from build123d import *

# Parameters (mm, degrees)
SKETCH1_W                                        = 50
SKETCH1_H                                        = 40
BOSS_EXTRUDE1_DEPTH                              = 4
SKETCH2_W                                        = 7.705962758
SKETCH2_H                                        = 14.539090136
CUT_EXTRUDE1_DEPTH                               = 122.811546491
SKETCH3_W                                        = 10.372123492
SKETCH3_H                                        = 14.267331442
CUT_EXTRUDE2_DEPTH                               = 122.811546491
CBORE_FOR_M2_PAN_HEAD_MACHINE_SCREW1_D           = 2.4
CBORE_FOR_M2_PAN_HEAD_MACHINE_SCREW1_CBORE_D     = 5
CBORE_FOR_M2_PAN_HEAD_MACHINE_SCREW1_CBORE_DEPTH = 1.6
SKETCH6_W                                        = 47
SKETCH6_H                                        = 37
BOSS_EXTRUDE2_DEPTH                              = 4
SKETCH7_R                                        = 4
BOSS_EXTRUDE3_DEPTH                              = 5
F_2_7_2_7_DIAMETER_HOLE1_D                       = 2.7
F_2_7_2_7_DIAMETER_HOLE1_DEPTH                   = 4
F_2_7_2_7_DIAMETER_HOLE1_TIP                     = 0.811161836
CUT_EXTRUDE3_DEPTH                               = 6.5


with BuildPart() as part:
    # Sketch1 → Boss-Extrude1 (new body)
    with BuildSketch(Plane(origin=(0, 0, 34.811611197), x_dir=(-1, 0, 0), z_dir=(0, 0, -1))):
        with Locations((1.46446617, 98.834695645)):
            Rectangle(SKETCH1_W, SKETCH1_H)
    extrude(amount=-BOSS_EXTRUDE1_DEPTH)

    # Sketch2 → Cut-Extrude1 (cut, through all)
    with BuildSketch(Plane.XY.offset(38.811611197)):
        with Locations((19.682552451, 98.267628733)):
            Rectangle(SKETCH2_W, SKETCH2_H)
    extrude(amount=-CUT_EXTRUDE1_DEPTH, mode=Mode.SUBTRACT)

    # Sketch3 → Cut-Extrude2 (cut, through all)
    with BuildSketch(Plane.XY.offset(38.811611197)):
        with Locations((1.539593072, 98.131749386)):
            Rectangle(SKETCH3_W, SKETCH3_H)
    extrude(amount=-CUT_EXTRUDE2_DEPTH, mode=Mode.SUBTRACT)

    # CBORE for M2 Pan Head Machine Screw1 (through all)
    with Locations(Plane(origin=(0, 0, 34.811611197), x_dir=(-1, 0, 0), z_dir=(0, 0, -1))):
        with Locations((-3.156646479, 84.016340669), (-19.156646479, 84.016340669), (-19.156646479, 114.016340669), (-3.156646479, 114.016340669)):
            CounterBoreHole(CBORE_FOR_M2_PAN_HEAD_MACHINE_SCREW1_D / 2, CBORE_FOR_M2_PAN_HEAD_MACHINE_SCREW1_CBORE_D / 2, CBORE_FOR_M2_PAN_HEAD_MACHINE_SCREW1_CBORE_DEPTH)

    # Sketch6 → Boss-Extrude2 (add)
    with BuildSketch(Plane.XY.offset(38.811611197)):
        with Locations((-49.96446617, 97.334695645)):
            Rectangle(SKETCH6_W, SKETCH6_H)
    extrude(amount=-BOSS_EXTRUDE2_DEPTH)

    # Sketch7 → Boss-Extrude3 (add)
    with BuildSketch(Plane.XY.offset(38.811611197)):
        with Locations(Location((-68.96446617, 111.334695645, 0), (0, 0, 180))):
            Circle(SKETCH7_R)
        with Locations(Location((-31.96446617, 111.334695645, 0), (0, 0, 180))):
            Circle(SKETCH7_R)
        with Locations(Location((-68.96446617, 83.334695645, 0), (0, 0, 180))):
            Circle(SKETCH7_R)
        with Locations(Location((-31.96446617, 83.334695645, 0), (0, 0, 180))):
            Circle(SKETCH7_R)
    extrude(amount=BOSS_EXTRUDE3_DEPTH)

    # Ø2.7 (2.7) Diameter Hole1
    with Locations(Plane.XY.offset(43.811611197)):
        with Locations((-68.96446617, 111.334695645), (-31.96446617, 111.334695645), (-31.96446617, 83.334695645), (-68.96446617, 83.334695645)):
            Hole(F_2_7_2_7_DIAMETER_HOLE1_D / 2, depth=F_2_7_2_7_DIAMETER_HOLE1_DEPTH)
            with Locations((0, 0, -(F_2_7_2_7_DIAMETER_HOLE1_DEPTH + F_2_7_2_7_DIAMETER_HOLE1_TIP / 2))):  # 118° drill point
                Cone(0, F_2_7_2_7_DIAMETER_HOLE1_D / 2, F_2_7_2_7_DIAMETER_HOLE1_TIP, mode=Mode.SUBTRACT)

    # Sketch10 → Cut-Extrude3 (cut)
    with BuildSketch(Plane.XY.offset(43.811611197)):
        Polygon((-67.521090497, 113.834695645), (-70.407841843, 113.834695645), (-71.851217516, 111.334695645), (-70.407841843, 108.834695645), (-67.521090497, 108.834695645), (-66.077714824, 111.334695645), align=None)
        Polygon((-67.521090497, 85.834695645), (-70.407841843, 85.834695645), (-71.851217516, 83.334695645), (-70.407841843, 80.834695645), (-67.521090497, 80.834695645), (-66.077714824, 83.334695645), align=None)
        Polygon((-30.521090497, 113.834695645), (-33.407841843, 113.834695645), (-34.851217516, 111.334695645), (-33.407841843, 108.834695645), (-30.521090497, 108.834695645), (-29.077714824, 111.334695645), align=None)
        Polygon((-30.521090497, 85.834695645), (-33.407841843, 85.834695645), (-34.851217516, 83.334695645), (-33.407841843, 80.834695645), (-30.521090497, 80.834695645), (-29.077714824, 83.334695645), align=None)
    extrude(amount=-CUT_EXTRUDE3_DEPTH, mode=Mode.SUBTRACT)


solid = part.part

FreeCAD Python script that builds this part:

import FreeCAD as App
import Part
import Sketcher

V = App.Vector
Q = App.Units.Quantity

doc = App.newDocument("Part")
body = doc.addObject("PartDesign::Body", "Body")

# Sketch on XY plane
sketch1 = doc.addObject("Sketcher::SketchObject", "Sketch")
body.addObject(sketch1)
sketch1.AttachmentSupport = (doc.XY_Plane, [""])
sketch1.MapMode = "FlatFace"
sketch1.AttachmentOffset = App.Placement(V(0, 0, 34.811611), App.Rotation())
sketch1.addGeometry(Part.LineSegment(V(24, 119, 0), V(24, 79, 0)), False)
sketch1.addGeometry(Part.LineSegment(V(24, 79, 0), V(-26, 79, 0)), False)
sketch1.addGeometry(Part.LineSegment(V(-26, 79, 0), V(-26, 119, 0)), False)
sketch1.addGeometry(Part.LineSegment(V(-26, 119, 0), V(24, 119, 0)), False)
sketch1.addConstraint(Sketcher.Constraint("Coincident", 0, 2, 1, 1))
sketch1.addConstraint(Sketcher.Constraint("Coincident", 1, 2, 2, 1))
sketch1.addConstraint(Sketcher.Constraint("Coincident", 2, 2, 3, 1))
sketch1.addConstraint(Sketcher.Constraint("Coincident", 3, 2, 0, 1))
sketch1.addConstraint(Sketcher.Constraint("Vertical", 0))
sketch1.addConstraint(Sketcher.Constraint("Horizontal", 1))
sketch1.addConstraint(Sketcher.Constraint("Vertical", 2))
sketch1.addConstraint(Sketcher.Constraint("Horizontal", 3))
sketch1.addConstraint(Sketcher.Constraint("DistanceX", 1, 2, 1, 1, Q("50 mm")))
sketch1.addConstraint(Sketcher.Constraint("DistanceY", 0, 2, 0, 1, Q("40 mm")))
sketch1.addConstraint(Sketcher.Constraint("DistanceX", -1, 1, 0, 2, Q("23.535534 mm")))
sketch1.addConstraint(Sketcher.Constraint("DistanceY", -1, 1, 0, 2, Q("78.834696 mm")))
pad1 = doc.addObject("PartDesign::Pad", "Pad")
body.addObject(pad1)
pad1.Profile = sketch1
pad1.Length = 4

# Sketch on XY plane
sketch2 = doc.addObject("Sketcher::SketchObject", "Sketch001")
body.addObject(sketch2)
sketch2.AttachmentSupport = (doc.XY_Plane, [""])
sketch2.MapMode = "FlatFace"
sketch2.AttachmentOffset = App.Placement(V(0, 0, 38.811611), App.Rotation())
sketch2.addGeometry(Part.LineSegment(V(16, 106, 0), V(16, 91, 0)), False)
sketch2.addGeometry(Part.LineSegment(V(16, 91, 0), V(24, 91, 0)), False)
sketch2.addGeometry(Part.LineSegment(V(24, 91, 0), V(24, 106, 0)), False)
sketch2.addGeometry(Part.LineSegment(V(24, 106, 0), V(16, 106, 0)), False)
sketch2.addConstraint(Sketcher.Constraint("Coincident", 0, 2, 1, 1))
sketch2.addConstraint(Sketcher.Constraint("Coincident", 1, 2, 2, 1))
sketch2.addConstraint(Sketcher.Constraint("Coincident", 2, 2, 3, 1))
sketch2.addConstraint(Sketcher.Constraint("Coincident", 3, 2, 0, 1))
sketch2.addConstraint(Sketcher.Constraint("Vertical", 0))
sketch2.addConstraint(Sketcher.Constraint("Horizontal", 1))
sketch2.addConstraint(Sketcher.Constraint("Vertical", 2))
sketch2.addConstraint(Sketcher.Constraint("Horizontal", 3))
sketch2.addConstraint(Sketcher.Constraint("DistanceY", 0, 2, 0, 1, Q("14.53909 mm")))
sketch2.addConstraint(Sketcher.Constraint("DistanceX", 1, 1, 1, 2, Q("7.705963 mm")))
sketch2.addConstraint(Sketcher.Constraint("DistanceX", -1, 1, 0, 2, Q("15.829571 mm")))
sketch2.addConstraint(Sketcher.Constraint("DistanceY", -1, 1, 0, 2, Q("90.998084 mm")))
pocket1 = doc.addObject("PartDesign::Pocket", "Pocket")
body.addObject(pocket1)
pocket1.Profile = sketch2
pocket1.Type = "ThroughAll"

# Sketch on XY plane
sketch3 = doc.addObject("Sketcher::SketchObject", "Sketch002")
body.addObject(sketch3)
sketch3.AttachmentSupport = (doc.XY_Plane, [""])
sketch3.MapMode = "FlatFace"
sketch3.AttachmentOffset = App.Placement(V(0, 0, 38.811611), App.Rotation())
sketch3.addGeometry(Part.LineSegment(V(-4, 105, 0), V(-4, 91, 0)), False)
sketch3.addGeometry(Part.LineSegment(V(-4, 91, 0), V(7, 91, 0)), False)
sketch3.addGeometry(Part.LineSegment(V(7, 91, 0), V(7, 105, 0)), False)
sketch3.addGeometry(Part.LineSegment(V(7, 105, 0), V(-4, 105, 0)), False)
sketch3.addConstraint(Sketcher.Constraint("Coincident", 0, 2, 1, 1))
sketch3.addConstraint(Sketcher.Constraint("Coincident", 1, 2, 2, 1))
sketch3.addConstraint(Sketcher.Constraint("Coincident", 2, 2, 3, 1))
sketch3.addConstraint(Sketcher.Constraint("Coincident", 3, 2, 0, 1))
sketch3.addConstraint(Sketcher.Constraint("Vertical", 0))
sketch3.addConstraint(Sketcher.Constraint("Horizontal", 1))
sketch3.addConstraint(Sketcher.Constraint("Vertical", 2))
sketch3.addConstraint(Sketcher.Constraint("Horizontal", 3))
sketch3.addConstraint(Sketcher.Constraint("DistanceY", 0, 2, 0, 1, Q("14.267331 mm")))
sketch3.addConstraint(Sketcher.Constraint("DistanceX", 1, 1, 1, 2, Q("10.372123 mm")))
sketch3.addConstraint(Sketcher.Constraint("DistanceX", 0, 2, -1, 1, Q("3.646469 mm")))
sketch3.addConstraint(Sketcher.Constraint("DistanceY", -1, 1, 0, 2, Q("90.998084 mm")))
pocket2 = doc.addObject("PartDesign::Pocket", "Pocket001")
body.addObject(pocket2)
pocket2.Profile = sketch3
pocket2.Type = "ThroughAll"

# Sketch on XY plane
sketch4 = doc.addObject("Sketcher::SketchObject", "Sketch003")
body.addObject(sketch4)
sketch4.AttachmentSupport = (doc.XY_Plane, [""])
sketch4.MapMode = "FlatFace"
sketch4.AttachmentOffset = App.Placement(V(0, 0, 34.811611), App.Rotation())
sketch4.addGeometry(Part.Circle(V(3.2, 84, 0), V(0, 0, 1), 1.2), False)
sketch4.addGeometry(Part.Circle(V(19.2, 84, 0), V(0, 0, 1), 1.2), False)
sketch4.addGeometry(Part.Circle(V(19.2, 114, 0), V(0, 0, 1), 1.2), False)
sketch4.addGeometry(Part.Circle(V(3.2, 114, 0), V(0, 0, 1), 1.2), False)
sketch4.addConstraint(Sketcher.Constraint("Equal", 0, 1))
sketch4.addConstraint(Sketcher.Constraint("Equal", 1, 2))
sketch4.addConstraint(Sketcher.Constraint("Equal", 2, 3))
sketch4.addConstraint(Sketcher.Constraint("Horizontal", 0, 3, 1, 3))
sketch4.addConstraint(Sketcher.Constraint("Horizontal", 2, 3, 3, 3))
sketch4.addConstraint(Sketcher.Constraint("Vertical", 1, 3, 2, 3))
sketch4.addConstraint(Sketcher.Constraint("Vertical", 0, 3, 3, 3))
sketch4.addConstraint(Sketcher.Constraint("Diameter", 0, Q("2.4 mm")))
sketch4.addConstraint(Sketcher.Constraint("DistanceX", 0, 3, 1, 3, Q("16 mm")))
sketch4.addConstraint(Sketcher.Constraint("DistanceY", 1, 3, 2, 3, Q("30 mm")))
sketch4.addConstraint(Sketcher.Constraint("DistanceY", -1, 1, 0, 3, Q("84.016341 mm")))
sketch4.addConstraint(Sketcher.Constraint("DistanceX", -1, 1, 0, 3, Q("3.156646 mm")))
doc.recompute()
hole = doc.addObject("PartDesign::Hole", "Hole")
body.addObject(hole)
hole.Profile = sketch4
hole.ThreadType = "None"
hole.Diameter = 2.4
hole.DepthType = "ThroughAll"
hole.HoleCutType = "Counterbore"
hole.HoleCutDiameter = 5
hole.HoleCutDepth = 1.6
hole.Reversed = True

# Sketch on XY plane
sketch5 = doc.addObject("Sketcher::SketchObject", "Sketch004")
body.addObject(sketch5)
sketch5.AttachmentSupport = (doc.XY_Plane, [""])
sketch5.MapMode = "FlatFace"
sketch5.AttachmentOffset = App.Placement(V(0, 0, 38.811611), App.Rotation())
sketch5.addGeometry(Part.LineSegment(V(-73, 116, 0), V(-73, 79, 0)), False)
sketch5.addGeometry(Part.LineSegment(V(-73, 79, 0), V(-26, 79, 0)), False)
sketch5.addGeometry(Part.LineSegment(V(-26, 79, 0), V(-26, 116, 0)), False)
sketch5.addGeometry(Part.LineSegment(V(-26, 116, 0), V(-73, 116, 0)), False)
sketch5.addConstraint(Sketcher.Constraint("Coincident", 0, 2, 1, 1))
sketch5.addConstraint(Sketcher.Constraint("Coincident", 1, 2, 2, 1))
sketch5.addConstraint(Sketcher.Constraint("Coincident", 2, 2, 3, 1))
sketch5.addConstraint(Sketcher.Constraint("Coincident", 3, 2, 0, 1))
sketch5.addConstraint(Sketcher.Constraint("Vertical", 0))
sketch5.addConstraint(Sketcher.Constraint("Horizontal", 1))
sketch5.addConstraint(Sketcher.Constraint("Vertical", 2))
sketch5.addConstraint(Sketcher.Constraint("Horizontal", 3))
sketch5.addConstraint(Sketcher.Constraint("DistanceX", 1, 1, 1, 2, Q("47 mm")))
sketch5.addConstraint(Sketcher.Constraint("DistanceY", 0, 2, 0, 1, Q("37 mm")))
sketch5.addConstraint(Sketcher.Constraint("DistanceX", 0, 2, -1, 1, Q("73.464466 mm")))
sketch5.addConstraint(Sketcher.Constraint("DistanceY", -1, 1, 0, 2, Q("78.834696 mm")))
pad2 = doc.addObject("PartDesign::Pad", "Pad001")
body.addObject(pad2)
pad2.Profile = sketch5
pad2.Length = 4
pad2.Reversed = True

# Sketch on XY plane
sketch6 = doc.addObject("Sketcher::SketchObject", "Sketch005")
body.addObject(sketch6)
sketch6.AttachmentSupport = (doc.XY_Plane, [""])
sketch6.MapMode = "FlatFace"
sketch6.AttachmentOffset = App.Placement(V(0, 0, 38.811611), App.Rotation())
sketch6.addGeometry(Part.Circle(V(-69, 111.3, 0), V(0, 0, 1), 4), False)
sketch6.addGeometry(Part.Circle(V(-32, 111.3, 0), V(0, 0, 1), 4), False)
sketch6.addGeometry(Part.Circle(V(-69, 83.3, 0), V(0, 0, 1), 4), False)
sketch6.addGeometry(Part.Circle(V(-32, 83.3, 0), V(0, 0, 1), 4), False)
sketch6.addConstraint(Sketcher.Constraint("Equal", 0, 1))
sketch6.addConstraint(Sketcher.Constraint("Equal", 1, 2))
sketch6.addConstraint(Sketcher.Constraint("Equal", 2, 3))
sketch6.addConstraint(Sketcher.Constraint("Horizontal", 0, 3, 1, 3))
sketch6.addConstraint(Sketcher.Constraint("Horizontal", 2, 3, 3, 3))
sketch6.addConstraint(Sketcher.Constraint("Vertical", 0, 3, 2, 3))
sketch6.addConstraint(Sketcher.Constraint("Vertical", 1, 3, 3, 3))
sketch6.addConstraint(Sketcher.Constraint("Diameter", 0, Q("8 mm")))
sketch6.addConstraint(Sketcher.Constraint("DistanceX", 0, 3, 1, 3, Q("37 mm")))
sketch6.addConstraint(Sketcher.Constraint("DistanceY", 2, 3, 0, 3, Q("28 mm")))
sketch6.addConstraint(Sketcher.Constraint("DistanceX", 0, 3, -1, 1, Q("68.964466 mm")))
sketch6.addConstraint(Sketcher.Constraint("DistanceY", -1, 1, 0, 3, Q("111.334696 mm")))
pad3 = doc.addObject("PartDesign::Pad", "Pad002")
body.addObject(pad3)
pad3.Profile = sketch6
pad3.Length = 5

# Sketch on XY plane
sketch7 = doc.addObject("Sketcher::SketchObject", "Sketch006")
body.addObject(sketch7)
sketch7.AttachmentSupport = (doc.XY_Plane, [""])
sketch7.MapMode = "FlatFace"
sketch7.AttachmentOffset = App.Placement(V(0, 0, 43.811611), App.Rotation())
sketch7.addGeometry(Part.Circle(V(-69, 111.3, 0), V(0, 0, 1), 1.4), False)
sketch7.addGeometry(Part.Circle(V(-32, 111.3, 0), V(0, 0, 1), 1.4), False)
sketch7.addGeometry(Part.Circle(V(-32, 83.3, 0), V(0, 0, 1), 1.4), False)
sketch7.addGeometry(Part.Circle(V(-69, 83.3, 0), V(0, 0, 1), 1.4), False)
sketch7.addConstraint(Sketcher.Constraint("Equal", 0, 1))
sketch7.addConstraint(Sketcher.Constraint("Equal", 1, 2))
sketch7.addConstraint(Sketcher.Constraint("Equal", 2, 3))
sketch7.addConstraint(Sketcher.Constraint("Horizontal", 0, 3, 1, 3))
sketch7.addConstraint(Sketcher.Constraint("Horizontal", 2, 3, 3, 3))
sketch7.addConstraint(Sketcher.Constraint("Vertical", 1, 3, 2, 3))
sketch7.addConstraint(Sketcher.Constraint("Vertical", 0, 3, 3, 3))
sketch7.addConstraint(Sketcher.Constraint("Diameter", 0, Q("2.7 mm")))
sketch7.addConstraint(Sketcher.Constraint("DistanceX", 0, 3, 1, 3, Q("37 mm")))
sketch7.addConstraint(Sketcher.Constraint("DistanceY", 2, 3, 1, 3, Q("28 mm")))
sketch7.addConstraint(Sketcher.Constraint("DistanceX", 0, 3, -1, 1, Q("68.964466 mm")))
sketch7.addConstraint(Sketcher.Constraint("DistanceY", -1, 1, 0, 3, Q("111.334696 mm")))
doc.recompute()
hole2 = doc.addObject("PartDesign::Hole", "Hole001")
body.addObject(hole2)
hole2.Profile = sketch7
hole2.ThreadType = "None"
hole2.Diameter = 2.7
hole2.DepthType = "Dimension"
hole2.Depth = 4
hole2.DrillPoint = "Angled"
hole2.DrillPointAngle = 118

# Sketch on XY plane
sketch8 = doc.addObject("Sketcher::SketchObject", "Sketch007")
body.addObject(sketch8)
sketch8.AttachmentSupport = (doc.XY_Plane, [""])
sketch8.MapMode = "FlatFace"
sketch8.AttachmentOffset = App.Placement(V(0, 0, 43.811611), App.Rotation())
sketch8.addGeometry(Part.LineSegment(V(-67.5, 113.8, 0), V(-70.4, 113.8, 0)), False)
sketch8.addGeometry(Part.LineSegment(V(-70.4, 113.8, 0), V(-71.9, 111.3, 0)), False)
sketch8.addGeometry(Part.LineSegment(V(-71.9, 111.3, 0), V(-70.4, 108.8, 0)), False)
sketch8.addGeometry(Part.LineSegment(V(-70.4, 108.8, 0), V(-67.5, 108.8, 0)), False)
sketch8.addGeometry(Part.LineSegment(V(-67.5, 108.8, 0), V(-66.1, 111.3, 0)), False)
sketch8.addGeometry(Part.LineSegment(V(-66.1, 111.3, 0), V(-67.5, 113.8, 0)), False)
sketch8.addGeometry(Part.LineSegment(V(-67.5, 85.8, 0), V(-70.4, 85.8, 0)), False)
sketch8.addGeometry(Part.LineSegment(V(-70.4, 85.8, 0), V(-71.9, 83.3, 0)), False)
sketch8.addGeometry(Part.LineSegment(V(-71.9, 83.3, 0), V(-70.4, 80.8, 0)), False)
sketch8.addGeometry(Part.LineSegment(V(-70.4, 80.8, 0), V(-67.5, 80.8, 0)), False)
sketch8.addGeometry(Part.LineSegment(V(-67.5, 80.8, 0), V(-66.1, 83.3, 0)), False)
sketch8.addGeometry(Part.LineSegment(V(-66.1, 83.3, 0), V(-67.5, 85.8, 0)), False)
sketch8.addGeometry(Part.LineSegment(V(-30.5, 113.8, 0), V(-33.4, 113.8, 0)), False)
sketch8.addGeometry(Part.LineSegment(V(-33.4, 113.8, 0), V(-34.9, 111.3, 0)), False)
sketch8.addGeometry(Part.LineSegment(V(-34.9, 111.3, 0), V(-33.4, 108.8, 0)), False)
sketch8.addGeometry(Part.LineSegment(V(-33.4, 108.8, 0), V(-30.5, 108.8, 0)), False)
sketch8.addGeometry(Part.LineSegment(V(-30.5, 108.8, 0), V(-29.1, 111.3, 0)), False)
sketch8.addGeometry(Part.LineSegment(V(-29.1, 111.3, 0), V(-30.5, 113.8, 0)), False)
sketch8.addGeometry(Part.LineSegment(V(-30.5, 85.8, 0), V(-33.4, 85.8, 0)), False)
sketch8.addGeometry(Part.LineSegment(V(-33.4, 85.8, 0), V(-34.9, 83.3, 0)), False)
sketch8.addGeometry(Part.LineSegment(V(-34.9, 83.3, 0), V(-33.4, 80.8, 0)), False)
sketch8.addGeometry(Part.LineSegment(V(-33.4, 80.8, 0), V(-30.5, 80.8, 0)), False)
sketch8.addGeometry(Part.LineSegment(V(-30.5, 80.8, 0), V(-29.1, 83.3, 0)), False)
sketch8.addGeometry(Part.LineSegment(V(-29.1, 83.3, 0), V(-30.5, 85.8, 0)), False)
sketch8.addConstraint(Sketcher.Constraint("Coincident", 0, 2, 1, 1))
sketch8.addConstraint(Sketcher.Constraint("Coincident", 1, 2, 2, 1))
sketch8.addConstraint(Sketcher.Constraint("Coincident", 2, 2, 3, 1))
sketch8.addConstraint(Sketcher.Constraint("Coincident", 3, 2, 4, 1))
sketch8.addConstraint(Sketcher.Constraint("Coincident", 4, 2, 5, 1))
sketch8.addConstraint(Sketcher.Constraint("Coincident", 5, 2, 0, 1))
sketch8.addConstraint(Sketcher.Constraint("Coincident", 6, 2, 7, 1))
sketch8.addConstraint(Sketcher.Constraint("Coincident", 7, 2, 8, 1))
sketch8.addConstraint(Sketcher.Constraint("Coincident", 8, 2, 9, 1))
sketch8.addConstraint(Sketcher.Constraint("Coincident", 9, 2, 10, 1))
sketch8.addConstraint(Sketcher.Constraint("Coincident", 10, 2, 11, 1))
sketch8.addConstraint(Sketcher.Constraint("Coincident", 11, 2, 6, 1))
sketch8.addConstraint(Sketcher.Constraint("Coincident", 12, 2, 13, 1))
sketch8.addConstraint(Sketcher.Constraint("Coincident", 13, 2, 14, 1))
sketch8.addConstraint(Sketcher.Constraint("Coincident", 14, 2, 15, 1))
sketch8.addConstraint(Sketcher.Constraint("Coincident", 15, 2, 16, 1))
sketch8.addConstraint(Sketcher.Constraint("Coincident", 16, 2, 17, 1))
sketch8.addConstraint(Sketcher.Constraint("Coincident", 17, 2, 12, 1))
sketch8.addConstraint(Sketcher.Constraint("Coincident", 18, 2, 19, 1))
sketch8.addConstraint(Sketcher.Constraint("Coincident", 19, 2, 20, 1))
sketch8.addConstraint(Sketcher.Constraint("Coincident", 20, 2, 21, 1))
sketch8.addConstraint(Sketcher.Constraint("Coincident", 21, 2, 22, 1))
sketch8.addConstraint(Sketcher.Constraint("Coincident", 22, 2, 23, 1))
sketch8.addConstraint(Sketcher.Constraint("Coincident", 23, 2, 18, 1))
sketch8.addConstraint(Sketcher.Constraint("Horizontal", 0))
sketch8.addConstraint(Sketcher.Constraint("Horizontal", 3))
sketch8.addConstraint(Sketcher.Constraint("Horizontal", 6))
sketch8.addConstraint(Sketcher.Constraint("Horizontal", 9))
sketch8.addConstraint(Sketcher.Constraint("Horizontal", 12))
sketch8.addConstraint(Sketcher.Constraint("Horizontal", 15))
sketch8.addConstraint(Sketcher.Constraint("Horizontal", 18))
sketch8.addConstraint(Sketcher.Constraint("Horizontal", 21))
sketch8.addConstraint(Sketcher.Constraint("Parallel", 1, 4))
sketch8.addConstraint(Sketcher.Constraint("Parallel", 2, 5))
sketch8.addConstraint(Sketcher.Constraint("Parallel", 4, 7))
sketch8.addConstraint(Sketcher.Constraint("Parallel", 5, 8))
sketch8.addConstraint(Sketcher.Constraint("Parallel", 7, 10))
sketch8.addConstraint(Sketcher.Constraint("Parallel", 8, 11))
sketch8.addConstraint(Sketcher.Constraint("Parallel", 10, 13))
sketch8.addConstraint(Sketcher.Constraint("Parallel", 11, 14))
sketch8.addConstraint(Sketcher.Constraint("Parallel", 13, 16))
sketch8.addConstraint(Sketcher.Constraint("Parallel", 14, 17))
sketch8.addConstraint(Sketcher.Constraint("Parallel", 16, 19))
sketch8.addConstraint(Sketcher.Constraint("Parallel", 17, 20))
sketch8.addConstraint(Sketcher.Constraint("Parallel", 19, 22))
sketch8.addConstraint(Sketcher.Constraint("Parallel", 20, 23))
sketch8.addConstraint(Sketcher.Constraint("Horizontal", 1, 2, 4, 2))
sketch8.addConstraint(Sketcher.Constraint("Horizontal", 7, 2, 10, 2))
sketch8.addConstraint(Sketcher.Constraint("Horizontal", 5, 2, 12, 2))
sketch8.addConstraint(Sketcher.Constraint("Horizontal", 4, 2, 13, 2))
sketch8.addConstraint(Sketcher.Constraint("Horizontal", 3, 2, 14, 2))
sketch8.addConstraint(Sketcher.Constraint("Horizontal", 13, 2, 16, 2))
sketch8.addConstraint(Sketcher.Constraint("Horizontal", 11, 2, 18, 2))
sketch8.addConstraint(Sketcher.Constraint("Horizontal", 10, 2, 19, 2))
sketch8.addConstraint(Sketcher.Constraint("Horizontal", 9, 2, 20, 2))
sketch8.addConstraint(Sketcher.Constraint("Horizontal", 19, 2, 22, 2))
sketch8.addConstraint(Sketcher.Constraint("Vertical", 0, 2, 2, 2))
sketch8.addConstraint(Sketcher.Constraint("Vertical", 3, 2, 5, 2))
sketch8.addConstraint(Sketcher.Constraint("Vertical", 2, 2, 6, 2))
sketch8.addConstraint(Sketcher.Constraint("Vertical", 1, 2, 7, 2))
sketch8.addConstraint(Sketcher.Constraint("Vertical", 6, 2, 8, 2))
sketch8.addConstraint(Sketcher.Constraint("Vertical", 5, 2, 9, 2))
sketch8.addConstraint(Sketcher.Constraint("Vertical", 14, 2, 18, 2))
sketch8.addConstraint(Sketcher.Constraint("Vertical", 17, 2, 21, 2))
sketch8.addConstraint(Sketcher.Constraint("Equal", 9, 12))
sketch8.addConstraint(Sketcher.Constraint("Angle", 1, Q("-120 deg")))
sketch8.addConstraint(Sketcher.Constraint("DistanceY", 2, 2, 0, 2, Q("5 mm")))
sketch8.addConstraint(Sketcher.Constraint("DistanceY", 6, 2, 2, 2, Q("23 mm")))
sketch8.addConstraint(Sketcher.Constraint("DistanceX", 0, 2, 12, 2, Q("37 mm")))
sketch8.addConstraint(Sketcher.Constraint("DistanceX", 0, 2, 0, 1, Q("2.886751 mm")))
sketch8.addConstraint(Sketcher.Constraint("DistanceX", 0, 2, -1, 1, Q("70.407842 mm")))
sketch8.addConstraint(Sketcher.Constraint("DistanceY", -1, 1, 0, 2, Q("113.834696 mm")))
pocket3 = doc.addObject("PartDesign::Pocket", "Pocket002")
body.addObject(pocket3)
pocket3.Profile = sketch8
pocket3.Length = 6.5

doc.recompute()
